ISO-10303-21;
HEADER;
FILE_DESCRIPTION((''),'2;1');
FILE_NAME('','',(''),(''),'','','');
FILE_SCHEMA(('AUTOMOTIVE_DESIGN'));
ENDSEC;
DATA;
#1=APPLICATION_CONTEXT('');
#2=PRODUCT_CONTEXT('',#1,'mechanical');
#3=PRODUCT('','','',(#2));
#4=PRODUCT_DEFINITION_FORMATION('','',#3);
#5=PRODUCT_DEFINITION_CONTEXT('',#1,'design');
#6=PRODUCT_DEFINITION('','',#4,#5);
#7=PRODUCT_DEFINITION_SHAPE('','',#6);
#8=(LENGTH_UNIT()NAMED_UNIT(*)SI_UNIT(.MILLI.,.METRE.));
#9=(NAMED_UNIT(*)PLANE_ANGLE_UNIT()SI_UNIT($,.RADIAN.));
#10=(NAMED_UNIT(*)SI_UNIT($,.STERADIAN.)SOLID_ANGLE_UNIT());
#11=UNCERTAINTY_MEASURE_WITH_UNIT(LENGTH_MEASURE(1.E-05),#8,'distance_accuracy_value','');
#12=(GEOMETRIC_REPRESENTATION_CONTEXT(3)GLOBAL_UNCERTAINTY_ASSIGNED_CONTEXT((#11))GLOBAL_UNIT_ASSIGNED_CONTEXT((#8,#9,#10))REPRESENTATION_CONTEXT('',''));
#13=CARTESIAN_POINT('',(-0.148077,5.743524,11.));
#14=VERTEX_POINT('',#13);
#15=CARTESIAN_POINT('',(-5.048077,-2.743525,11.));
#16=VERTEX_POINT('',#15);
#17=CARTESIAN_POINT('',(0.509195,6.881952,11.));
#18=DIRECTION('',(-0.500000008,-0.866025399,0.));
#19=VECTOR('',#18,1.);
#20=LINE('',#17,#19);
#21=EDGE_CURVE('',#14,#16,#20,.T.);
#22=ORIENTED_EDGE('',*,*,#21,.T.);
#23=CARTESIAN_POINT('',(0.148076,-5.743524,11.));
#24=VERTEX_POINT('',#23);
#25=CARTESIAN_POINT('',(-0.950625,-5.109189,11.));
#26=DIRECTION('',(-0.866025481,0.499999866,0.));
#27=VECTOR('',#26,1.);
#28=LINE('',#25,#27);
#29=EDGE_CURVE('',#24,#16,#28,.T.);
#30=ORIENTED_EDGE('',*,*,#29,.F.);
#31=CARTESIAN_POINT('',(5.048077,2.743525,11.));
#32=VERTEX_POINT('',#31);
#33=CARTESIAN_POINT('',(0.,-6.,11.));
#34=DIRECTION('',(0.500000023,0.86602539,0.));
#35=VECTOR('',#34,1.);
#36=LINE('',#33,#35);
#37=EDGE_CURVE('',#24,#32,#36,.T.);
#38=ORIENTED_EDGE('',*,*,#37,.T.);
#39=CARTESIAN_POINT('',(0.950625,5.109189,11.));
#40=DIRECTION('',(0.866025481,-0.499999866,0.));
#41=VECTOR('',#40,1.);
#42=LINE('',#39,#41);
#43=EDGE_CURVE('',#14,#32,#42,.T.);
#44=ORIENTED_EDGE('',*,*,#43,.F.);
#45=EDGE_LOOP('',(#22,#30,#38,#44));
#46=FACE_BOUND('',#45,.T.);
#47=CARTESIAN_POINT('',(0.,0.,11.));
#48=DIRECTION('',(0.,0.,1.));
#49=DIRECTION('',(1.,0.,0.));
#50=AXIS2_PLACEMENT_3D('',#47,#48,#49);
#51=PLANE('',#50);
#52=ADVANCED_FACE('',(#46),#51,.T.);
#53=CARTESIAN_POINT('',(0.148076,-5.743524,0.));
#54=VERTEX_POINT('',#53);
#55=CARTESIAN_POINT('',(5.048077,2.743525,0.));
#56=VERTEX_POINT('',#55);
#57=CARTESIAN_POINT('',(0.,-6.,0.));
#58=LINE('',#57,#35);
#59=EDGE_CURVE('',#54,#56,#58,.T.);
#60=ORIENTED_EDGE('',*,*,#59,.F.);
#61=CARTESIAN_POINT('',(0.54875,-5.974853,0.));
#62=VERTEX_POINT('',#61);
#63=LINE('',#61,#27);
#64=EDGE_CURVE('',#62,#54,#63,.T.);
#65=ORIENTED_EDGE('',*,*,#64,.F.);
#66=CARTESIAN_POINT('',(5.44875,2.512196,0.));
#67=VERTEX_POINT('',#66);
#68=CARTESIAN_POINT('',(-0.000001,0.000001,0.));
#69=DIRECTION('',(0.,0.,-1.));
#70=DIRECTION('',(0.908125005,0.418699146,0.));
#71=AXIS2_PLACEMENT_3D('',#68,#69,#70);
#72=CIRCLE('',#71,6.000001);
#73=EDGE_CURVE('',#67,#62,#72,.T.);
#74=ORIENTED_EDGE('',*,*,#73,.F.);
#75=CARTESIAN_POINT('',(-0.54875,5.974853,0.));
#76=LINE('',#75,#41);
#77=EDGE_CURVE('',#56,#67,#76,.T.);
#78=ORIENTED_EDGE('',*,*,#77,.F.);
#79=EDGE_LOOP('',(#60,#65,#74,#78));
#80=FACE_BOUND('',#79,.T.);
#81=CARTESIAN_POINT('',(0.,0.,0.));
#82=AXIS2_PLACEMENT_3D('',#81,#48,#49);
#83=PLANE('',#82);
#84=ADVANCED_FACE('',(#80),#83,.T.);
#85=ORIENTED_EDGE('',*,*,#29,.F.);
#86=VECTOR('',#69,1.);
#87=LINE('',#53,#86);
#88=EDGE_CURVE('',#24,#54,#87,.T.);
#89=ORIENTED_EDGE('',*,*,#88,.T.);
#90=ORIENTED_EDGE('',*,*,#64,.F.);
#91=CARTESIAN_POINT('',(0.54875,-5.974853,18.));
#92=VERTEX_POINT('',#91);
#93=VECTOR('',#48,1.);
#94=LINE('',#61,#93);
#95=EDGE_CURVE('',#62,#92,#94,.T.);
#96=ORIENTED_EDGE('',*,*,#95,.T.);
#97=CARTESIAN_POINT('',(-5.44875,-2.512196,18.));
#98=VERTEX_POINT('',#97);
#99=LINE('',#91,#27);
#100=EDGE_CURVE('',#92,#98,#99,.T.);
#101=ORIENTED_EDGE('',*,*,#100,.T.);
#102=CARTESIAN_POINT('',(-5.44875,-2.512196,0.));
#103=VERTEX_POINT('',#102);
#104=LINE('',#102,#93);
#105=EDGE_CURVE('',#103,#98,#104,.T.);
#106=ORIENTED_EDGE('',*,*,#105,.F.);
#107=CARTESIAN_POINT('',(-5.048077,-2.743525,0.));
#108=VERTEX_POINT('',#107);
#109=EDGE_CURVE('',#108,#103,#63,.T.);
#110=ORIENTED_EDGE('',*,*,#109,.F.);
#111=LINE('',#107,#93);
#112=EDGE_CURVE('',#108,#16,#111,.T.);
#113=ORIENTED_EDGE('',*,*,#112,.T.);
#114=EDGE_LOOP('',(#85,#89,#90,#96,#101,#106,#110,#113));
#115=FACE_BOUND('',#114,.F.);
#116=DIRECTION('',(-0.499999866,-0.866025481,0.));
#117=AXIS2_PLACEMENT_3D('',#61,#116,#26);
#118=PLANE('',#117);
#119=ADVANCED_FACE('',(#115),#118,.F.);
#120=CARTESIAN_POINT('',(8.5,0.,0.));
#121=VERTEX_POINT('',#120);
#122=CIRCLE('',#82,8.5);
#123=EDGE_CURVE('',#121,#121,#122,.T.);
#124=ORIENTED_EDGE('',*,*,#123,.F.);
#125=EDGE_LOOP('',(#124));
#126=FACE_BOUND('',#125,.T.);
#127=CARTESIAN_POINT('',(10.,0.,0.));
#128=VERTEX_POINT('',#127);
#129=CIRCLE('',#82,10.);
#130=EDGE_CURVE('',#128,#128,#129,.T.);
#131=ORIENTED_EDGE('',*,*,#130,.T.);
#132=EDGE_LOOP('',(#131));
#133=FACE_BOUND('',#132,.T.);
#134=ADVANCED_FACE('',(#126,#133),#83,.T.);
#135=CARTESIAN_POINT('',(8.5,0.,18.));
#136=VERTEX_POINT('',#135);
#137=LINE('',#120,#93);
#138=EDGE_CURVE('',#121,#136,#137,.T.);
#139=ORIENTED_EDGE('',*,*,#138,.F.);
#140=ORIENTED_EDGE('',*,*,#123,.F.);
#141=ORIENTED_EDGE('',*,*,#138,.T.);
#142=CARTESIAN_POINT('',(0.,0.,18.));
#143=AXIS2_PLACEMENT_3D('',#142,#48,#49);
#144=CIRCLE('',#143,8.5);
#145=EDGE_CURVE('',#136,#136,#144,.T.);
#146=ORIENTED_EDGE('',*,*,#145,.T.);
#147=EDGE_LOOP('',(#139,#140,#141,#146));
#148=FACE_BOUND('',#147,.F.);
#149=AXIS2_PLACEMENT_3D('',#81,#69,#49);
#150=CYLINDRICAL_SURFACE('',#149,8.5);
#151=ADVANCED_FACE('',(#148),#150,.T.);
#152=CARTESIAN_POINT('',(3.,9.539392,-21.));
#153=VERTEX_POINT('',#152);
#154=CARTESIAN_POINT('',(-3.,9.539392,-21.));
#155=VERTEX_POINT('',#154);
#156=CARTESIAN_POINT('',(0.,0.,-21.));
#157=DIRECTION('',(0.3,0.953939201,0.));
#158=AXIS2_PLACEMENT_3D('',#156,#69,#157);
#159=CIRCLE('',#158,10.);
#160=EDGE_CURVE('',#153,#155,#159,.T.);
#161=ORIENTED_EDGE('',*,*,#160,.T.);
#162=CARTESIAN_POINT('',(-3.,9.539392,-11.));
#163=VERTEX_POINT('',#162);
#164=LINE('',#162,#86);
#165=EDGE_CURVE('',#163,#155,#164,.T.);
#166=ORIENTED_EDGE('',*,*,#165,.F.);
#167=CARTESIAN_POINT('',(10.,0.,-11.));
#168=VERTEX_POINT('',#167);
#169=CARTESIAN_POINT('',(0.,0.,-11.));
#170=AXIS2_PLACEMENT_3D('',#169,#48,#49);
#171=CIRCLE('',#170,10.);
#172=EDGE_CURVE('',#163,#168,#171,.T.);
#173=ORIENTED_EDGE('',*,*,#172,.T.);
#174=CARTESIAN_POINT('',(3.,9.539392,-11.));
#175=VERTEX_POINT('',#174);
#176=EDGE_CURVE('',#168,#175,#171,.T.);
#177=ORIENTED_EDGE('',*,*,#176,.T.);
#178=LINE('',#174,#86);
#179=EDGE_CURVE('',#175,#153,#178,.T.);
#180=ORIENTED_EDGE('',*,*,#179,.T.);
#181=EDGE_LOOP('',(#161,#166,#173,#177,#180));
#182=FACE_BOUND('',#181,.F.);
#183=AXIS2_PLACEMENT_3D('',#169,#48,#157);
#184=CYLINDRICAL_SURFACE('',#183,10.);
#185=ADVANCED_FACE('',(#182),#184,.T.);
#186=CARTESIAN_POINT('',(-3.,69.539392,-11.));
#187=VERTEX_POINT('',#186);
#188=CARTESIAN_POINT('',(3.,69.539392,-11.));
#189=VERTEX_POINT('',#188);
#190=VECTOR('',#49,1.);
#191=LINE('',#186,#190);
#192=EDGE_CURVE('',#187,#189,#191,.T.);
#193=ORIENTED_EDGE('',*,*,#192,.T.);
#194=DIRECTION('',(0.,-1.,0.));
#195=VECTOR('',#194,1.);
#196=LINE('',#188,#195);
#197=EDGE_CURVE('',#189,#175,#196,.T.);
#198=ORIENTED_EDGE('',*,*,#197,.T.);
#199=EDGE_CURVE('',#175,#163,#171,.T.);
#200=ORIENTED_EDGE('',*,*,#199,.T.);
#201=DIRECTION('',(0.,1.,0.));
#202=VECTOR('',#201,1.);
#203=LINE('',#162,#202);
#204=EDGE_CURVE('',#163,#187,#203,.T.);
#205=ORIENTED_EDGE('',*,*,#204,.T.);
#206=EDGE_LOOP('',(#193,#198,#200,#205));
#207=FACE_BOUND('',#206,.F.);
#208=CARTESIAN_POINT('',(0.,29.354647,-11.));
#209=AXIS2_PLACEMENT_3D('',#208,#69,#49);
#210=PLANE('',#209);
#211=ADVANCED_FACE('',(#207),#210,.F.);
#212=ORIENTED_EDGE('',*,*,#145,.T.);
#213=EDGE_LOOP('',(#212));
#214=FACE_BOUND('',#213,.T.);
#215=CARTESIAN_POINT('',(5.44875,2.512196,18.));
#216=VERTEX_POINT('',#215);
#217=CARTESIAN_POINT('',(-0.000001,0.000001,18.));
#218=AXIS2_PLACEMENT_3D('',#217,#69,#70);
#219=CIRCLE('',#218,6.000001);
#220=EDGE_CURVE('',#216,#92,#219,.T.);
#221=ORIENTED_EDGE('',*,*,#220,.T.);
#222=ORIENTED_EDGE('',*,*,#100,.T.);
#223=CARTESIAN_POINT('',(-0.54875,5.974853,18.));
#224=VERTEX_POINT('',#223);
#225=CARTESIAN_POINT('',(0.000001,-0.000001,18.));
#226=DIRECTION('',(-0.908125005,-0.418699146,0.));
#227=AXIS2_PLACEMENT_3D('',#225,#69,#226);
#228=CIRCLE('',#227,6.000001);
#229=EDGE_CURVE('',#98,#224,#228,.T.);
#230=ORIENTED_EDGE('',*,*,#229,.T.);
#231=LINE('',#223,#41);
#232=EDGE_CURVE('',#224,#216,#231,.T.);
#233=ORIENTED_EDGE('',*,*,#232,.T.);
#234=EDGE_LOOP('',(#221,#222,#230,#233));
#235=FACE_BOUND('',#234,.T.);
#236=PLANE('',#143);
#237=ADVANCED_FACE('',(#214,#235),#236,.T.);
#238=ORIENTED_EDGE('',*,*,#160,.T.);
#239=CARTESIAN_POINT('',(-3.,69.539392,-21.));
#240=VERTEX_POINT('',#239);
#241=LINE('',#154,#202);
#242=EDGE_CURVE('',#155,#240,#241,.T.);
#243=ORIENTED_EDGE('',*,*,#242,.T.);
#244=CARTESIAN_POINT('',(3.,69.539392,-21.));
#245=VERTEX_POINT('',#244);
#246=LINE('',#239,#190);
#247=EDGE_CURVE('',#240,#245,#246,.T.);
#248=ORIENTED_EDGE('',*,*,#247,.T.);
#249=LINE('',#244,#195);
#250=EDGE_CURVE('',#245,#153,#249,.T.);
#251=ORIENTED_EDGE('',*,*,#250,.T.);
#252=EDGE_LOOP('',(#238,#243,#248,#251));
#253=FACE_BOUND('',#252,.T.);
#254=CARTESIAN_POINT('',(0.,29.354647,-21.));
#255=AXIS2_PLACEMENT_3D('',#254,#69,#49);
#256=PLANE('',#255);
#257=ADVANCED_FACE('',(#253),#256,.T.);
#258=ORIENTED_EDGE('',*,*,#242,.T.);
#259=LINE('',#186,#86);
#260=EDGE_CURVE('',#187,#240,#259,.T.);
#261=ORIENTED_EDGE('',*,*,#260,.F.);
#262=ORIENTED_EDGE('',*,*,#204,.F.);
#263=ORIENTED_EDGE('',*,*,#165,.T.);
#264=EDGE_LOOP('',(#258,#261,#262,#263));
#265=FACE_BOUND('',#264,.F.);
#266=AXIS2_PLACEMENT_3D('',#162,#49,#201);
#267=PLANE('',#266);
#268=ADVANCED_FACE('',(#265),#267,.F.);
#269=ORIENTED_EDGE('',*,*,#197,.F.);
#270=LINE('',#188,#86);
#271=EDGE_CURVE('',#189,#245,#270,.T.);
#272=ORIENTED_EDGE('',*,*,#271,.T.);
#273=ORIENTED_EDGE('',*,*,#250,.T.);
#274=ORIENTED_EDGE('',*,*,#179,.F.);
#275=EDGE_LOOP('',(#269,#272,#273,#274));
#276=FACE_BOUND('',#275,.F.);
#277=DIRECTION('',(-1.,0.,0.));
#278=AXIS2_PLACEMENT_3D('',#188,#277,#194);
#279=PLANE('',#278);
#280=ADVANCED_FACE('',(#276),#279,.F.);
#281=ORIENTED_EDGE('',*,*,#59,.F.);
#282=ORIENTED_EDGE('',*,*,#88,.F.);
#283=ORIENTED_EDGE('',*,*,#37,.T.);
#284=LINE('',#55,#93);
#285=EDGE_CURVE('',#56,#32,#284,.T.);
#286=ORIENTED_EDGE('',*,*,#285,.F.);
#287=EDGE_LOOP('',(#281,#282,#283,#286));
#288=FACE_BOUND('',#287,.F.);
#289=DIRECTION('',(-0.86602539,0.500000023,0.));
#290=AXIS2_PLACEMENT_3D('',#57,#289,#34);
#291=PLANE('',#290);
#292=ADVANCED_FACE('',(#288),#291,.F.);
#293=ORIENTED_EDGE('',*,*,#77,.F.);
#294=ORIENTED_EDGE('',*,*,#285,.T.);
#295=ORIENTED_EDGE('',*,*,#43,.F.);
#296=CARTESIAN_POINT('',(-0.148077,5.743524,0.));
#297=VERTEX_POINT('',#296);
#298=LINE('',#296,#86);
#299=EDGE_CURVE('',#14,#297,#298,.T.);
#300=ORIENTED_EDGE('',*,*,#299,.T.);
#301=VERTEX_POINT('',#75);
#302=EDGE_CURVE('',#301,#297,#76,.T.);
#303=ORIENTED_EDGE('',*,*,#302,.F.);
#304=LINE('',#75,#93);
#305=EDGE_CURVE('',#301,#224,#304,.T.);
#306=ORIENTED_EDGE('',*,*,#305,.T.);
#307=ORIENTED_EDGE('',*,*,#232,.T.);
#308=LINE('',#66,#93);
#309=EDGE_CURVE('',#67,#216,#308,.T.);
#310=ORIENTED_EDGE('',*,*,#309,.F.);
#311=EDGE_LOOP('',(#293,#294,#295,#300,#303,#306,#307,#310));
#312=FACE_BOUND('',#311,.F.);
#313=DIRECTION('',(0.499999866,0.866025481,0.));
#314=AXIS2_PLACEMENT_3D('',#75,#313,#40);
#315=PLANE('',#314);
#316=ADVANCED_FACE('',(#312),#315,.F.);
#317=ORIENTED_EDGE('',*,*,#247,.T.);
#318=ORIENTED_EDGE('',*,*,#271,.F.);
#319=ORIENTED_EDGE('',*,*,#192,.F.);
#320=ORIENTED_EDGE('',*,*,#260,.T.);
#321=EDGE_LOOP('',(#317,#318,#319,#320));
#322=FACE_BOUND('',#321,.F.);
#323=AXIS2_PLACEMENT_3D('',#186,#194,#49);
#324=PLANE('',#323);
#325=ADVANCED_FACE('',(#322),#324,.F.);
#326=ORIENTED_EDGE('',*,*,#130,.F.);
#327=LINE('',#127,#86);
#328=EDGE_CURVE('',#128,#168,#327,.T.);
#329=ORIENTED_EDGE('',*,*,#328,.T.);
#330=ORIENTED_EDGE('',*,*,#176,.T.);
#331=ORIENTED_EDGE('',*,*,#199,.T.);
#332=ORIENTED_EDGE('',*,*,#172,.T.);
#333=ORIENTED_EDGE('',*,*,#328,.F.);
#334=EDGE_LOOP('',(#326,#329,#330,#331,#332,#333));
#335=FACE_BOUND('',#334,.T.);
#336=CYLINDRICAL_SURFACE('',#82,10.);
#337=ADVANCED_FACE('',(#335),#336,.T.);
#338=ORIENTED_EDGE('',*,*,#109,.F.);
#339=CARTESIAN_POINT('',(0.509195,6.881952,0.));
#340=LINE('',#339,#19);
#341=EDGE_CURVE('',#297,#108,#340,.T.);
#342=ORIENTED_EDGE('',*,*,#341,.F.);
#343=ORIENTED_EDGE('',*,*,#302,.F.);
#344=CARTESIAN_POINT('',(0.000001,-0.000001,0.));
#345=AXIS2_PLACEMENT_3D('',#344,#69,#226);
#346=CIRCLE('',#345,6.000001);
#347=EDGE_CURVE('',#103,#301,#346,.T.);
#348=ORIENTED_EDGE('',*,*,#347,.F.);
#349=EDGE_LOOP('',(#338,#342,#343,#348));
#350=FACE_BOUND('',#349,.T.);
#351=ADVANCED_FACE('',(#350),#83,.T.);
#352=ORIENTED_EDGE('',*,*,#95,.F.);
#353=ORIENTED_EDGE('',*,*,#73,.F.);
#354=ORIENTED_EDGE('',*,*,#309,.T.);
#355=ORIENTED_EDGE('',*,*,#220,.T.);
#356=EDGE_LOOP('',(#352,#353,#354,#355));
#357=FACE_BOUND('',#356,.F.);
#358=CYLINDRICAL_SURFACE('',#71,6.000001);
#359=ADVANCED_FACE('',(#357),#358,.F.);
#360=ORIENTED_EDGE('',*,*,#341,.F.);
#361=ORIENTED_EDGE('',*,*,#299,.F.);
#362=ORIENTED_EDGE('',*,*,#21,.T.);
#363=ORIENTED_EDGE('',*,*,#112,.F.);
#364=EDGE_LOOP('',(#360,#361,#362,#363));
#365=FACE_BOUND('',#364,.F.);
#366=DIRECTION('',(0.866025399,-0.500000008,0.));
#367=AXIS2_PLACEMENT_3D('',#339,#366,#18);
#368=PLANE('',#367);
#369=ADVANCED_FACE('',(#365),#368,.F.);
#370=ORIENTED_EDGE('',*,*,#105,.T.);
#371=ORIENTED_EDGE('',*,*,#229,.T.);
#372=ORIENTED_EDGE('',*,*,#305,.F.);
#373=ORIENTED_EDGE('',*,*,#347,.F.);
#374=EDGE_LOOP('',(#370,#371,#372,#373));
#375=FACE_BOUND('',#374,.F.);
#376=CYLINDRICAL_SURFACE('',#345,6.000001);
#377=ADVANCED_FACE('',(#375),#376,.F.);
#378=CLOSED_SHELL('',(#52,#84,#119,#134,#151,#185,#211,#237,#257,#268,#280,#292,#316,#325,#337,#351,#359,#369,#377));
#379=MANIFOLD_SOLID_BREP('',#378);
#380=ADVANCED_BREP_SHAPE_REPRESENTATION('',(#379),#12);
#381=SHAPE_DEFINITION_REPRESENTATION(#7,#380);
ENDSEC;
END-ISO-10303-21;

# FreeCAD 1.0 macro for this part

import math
import FreeCAD as App
import Part
import Sketcher
from FreeCAD import Vector
Q = App.Units.Quantity

doc = App.newDocument("Part")
body = doc.addObject("PartDesign::Body", "Body")

# Sketch on XY plane
sketch1 = body.newObject("Sketcher::SketchObject", "Sketch")
sketch1.AttachmentSupport = (doc.getObject("XY_Plane"), [""])
sketch1.MapMode = "FlatFace"
sketch1.addGeometry([
    Part.Circle(Vector(0, 0, 0), Vector(0, 0, 1), 8.5),  # 0
    Part.LineSegment(Vector(0.54875, -5.974853, 0), Vector(-5.44875, -2.512196, 0)),  # 1
    Part.ArcOfCircle(Part.Circle(Vector(0.000001, -0.000001, 0), Vector(0, 0, 1), 6.000001), math.radians(95.247514), math.radians(204.752486)),  # 2
    Part.LineSegment(Vector(-0.54875, 5.974853, 0), Vector(5.44875, 2.512196, 0)),  # 3
    Part.ArcOfCircle(Part.Circle(Vector(-0.000001, 0.000001, 0), Vector(0, 0, 1), 6.000001), math.radians(-84.752486), math.radians(24.752486)),  # 4
], False)
sketch1.addConstraint([
    Sketcher.Constraint("Coincident", 1, 2, 2, 2),
    Sketcher.Constraint("Coincident", 2, 1, 3, 1),
    Sketcher.Constraint("Coincident", 3, 2, 4, 2),
    Sketcher.Constraint("Coincident", 4, 1, 1, 1),
    Sketcher.Constraint("Coincident", 0, 3, -1, 1),
    Sketcher.Constraint("Coincident", 2, 3, -1, 1),
    Sketcher.Constraint("Coincident", 4, 3, -1, 1),
    Sketcher.Constraint("Equal", 2, 4),
    Sketcher.Constraint("Parallel", 1, 3),
    Sketcher.Constraint("Equal", 1, 3),
    Sketcher.Constraint("Diameter", 0, Q("17 mm")),
    Sketcher.Constraint("Radius", 2, Q("6.000001 mm")),
    Sketcher.Constraint("Angle", 1, Q("150.000009 deg")),
    Sketcher.Constraint("DistanceX", 1, 2, 2, 1, Q("4.9 mm")),
])
pad1 = body.newObject("PartDesign::Pad", "Pad")
pad1.Profile = sketch1
pad1.Length = 18

# Sketch on XY plane
sketch2 = body.newObject("Sketcher::SketchObject", "Sketch001")
sketch2.AttachmentSupport = (doc.getObject("XY_Plane"), [""])
sketch2.MapMode = "FlatFace"
sketch2.addGeometry([
    Part.LineSegment(Vector(0.509195, 6.881952, 0), Vector(-5.705348, -3.881952, 0)),  # 0
    Part.LineSegment(Vector(-5.705348, -3.881952, 0), Vector(-0.509195, -6.881952, 0)),  # 1
    Part.LineSegment(Vector(-0.509195, -6.881952, 0), Vector(0, -6, 0)),  # 2
    Part.LineSegment(Vector(0, -6, 0), Vector(5.705348, 3.881952, 0)),  # 3
    Part.LineSegment(Vector(5.705348, 3.881952, 0), Vector(0.509195, 6.881952, 0)),  # 4
], False)
sketch2.addConstraint([
    Sketcher.Constraint("Coincident", 0, 2, 1, 1),
    Sketcher.Constraint("Coincident", 1, 2, 2, 1),
    Sketcher.Constraint("Coincident", 2, 2, 3, 1),
    Sketcher.Constraint("Coincident", 3, 2, 4, 1),
    Sketcher.Constraint("Coincident", 4, 2, 0, 1),
    Sketcher.Constraint("Symmetric", 0, 2, 3, 2, -1, 1),
    Sketcher.Constraint("Symmetric", 1, 2, 4, 2, -1, 1),
    Sketcher.Constraint("PointOnObject", 2, 2, -2),
    Sketcher.Constraint("Perpendicular", 0, 1),
    Sketcher.Constraint("Perpendicular", 1, 2),
    Sketcher.Constraint("Angle", 0, Q("-120.000001 deg")),
    Sketcher.Constraint("Distance", 1, Q("6 mm")),
    Sketcher.Constraint("Distance", 2, Q("1.01839 mm")),
])
pad2 = body.newObject("PartDesign::Pad", "Pad001")
pad2.Profile = sketch2
pad2.Length = 11

# Sketch on XY plane
sketch3 = body.newObject("Sketcher::SketchObject", "Sketch002")
sketch3.AttachmentSupport = (doc.getObject("XY_Plane"), [""])
sketch3.MapMode = "FlatFace"
sketch3.addGeometry(Part.Circle(Vector(0, 0, 0), Vector(0, 0, 1), 10), False)
sketch3.addConstraint([
    Sketcher.Constraint("Coincident", 0, 3, -1, 1),
    Sketcher.Constraint("Diameter", 0, Q("20 mm")),
])
pad3 = body.newObject("PartDesign::Pad", "Pad002")
pad3.Profile = sketch3
pad3.Length = 11
pad3.Reversed = True

# Sketch on XY plane
sketch4 = body.newObject("Sketcher::SketchObject", "Sketch003")
sketch4.AttachmentSupport = (doc.getObject("XY_Plane"), [""])
sketch4.MapMode = "FlatFace"
sketch4.AttachmentOffset = App.Placement(Vector(0, 0, -11), App.Rotation())
sketch4.addGeometry([
    Part.LineSegment(Vector(3, 69.539392, 0), Vector(3, 9.539392, 0)),
    Part.ArcOfCircle(Part.Circle(Vector(0, 0, 0), Vector(0, 0, 1), 10), math.radians(107.457603), math.radians(432.542397)),
    Part.LineSegment(Vector(-3, 9.539392, 0), Vector(-3, 69.539392, 0)),
    Part.LineSegment(Vector(-3, 69.539392, 0), Vector(3, 69.539392, 0)),
], False)
sketch4.addConstraint([
    Sketcher.Constraint("Coincident", 0, 2, 1, 2),
    Sketcher.Constraint("Coincident", 1, 1, 2, 1),
    Sketcher.Constraint("Coincident", 2, 2, 3, 1),
    Sketcher.Constraint("Coincident", 3, 2, 0, 1),
    Sketcher.Constraint("Vertical", 0),
    Sketcher.Constraint("Vertical", 2),
    Sketcher.Constraint("Horizontal", 3),
    Sketcher.Constraint("Coincident", 1, 3, -1, 1),
    Sketcher.Constraint("Horizontal", 0, 2, 1, 1),
    Sketcher.Constraint("Radius", 1, Q("10 mm")),
    Sketcher.Constraint("DistanceX", 3, 1, 3, 2, Q("6 mm")),
    Sketcher.Constraint("DistanceY", 0, 2, 0, 1, Q("60 mm")),
])
pad4 = body.newObject("PartDesign::Pad", "Pad003")
pad4.Profile = sketch4
pad4.Length = 10
pad4.Reversed = True

doc.recompute()
